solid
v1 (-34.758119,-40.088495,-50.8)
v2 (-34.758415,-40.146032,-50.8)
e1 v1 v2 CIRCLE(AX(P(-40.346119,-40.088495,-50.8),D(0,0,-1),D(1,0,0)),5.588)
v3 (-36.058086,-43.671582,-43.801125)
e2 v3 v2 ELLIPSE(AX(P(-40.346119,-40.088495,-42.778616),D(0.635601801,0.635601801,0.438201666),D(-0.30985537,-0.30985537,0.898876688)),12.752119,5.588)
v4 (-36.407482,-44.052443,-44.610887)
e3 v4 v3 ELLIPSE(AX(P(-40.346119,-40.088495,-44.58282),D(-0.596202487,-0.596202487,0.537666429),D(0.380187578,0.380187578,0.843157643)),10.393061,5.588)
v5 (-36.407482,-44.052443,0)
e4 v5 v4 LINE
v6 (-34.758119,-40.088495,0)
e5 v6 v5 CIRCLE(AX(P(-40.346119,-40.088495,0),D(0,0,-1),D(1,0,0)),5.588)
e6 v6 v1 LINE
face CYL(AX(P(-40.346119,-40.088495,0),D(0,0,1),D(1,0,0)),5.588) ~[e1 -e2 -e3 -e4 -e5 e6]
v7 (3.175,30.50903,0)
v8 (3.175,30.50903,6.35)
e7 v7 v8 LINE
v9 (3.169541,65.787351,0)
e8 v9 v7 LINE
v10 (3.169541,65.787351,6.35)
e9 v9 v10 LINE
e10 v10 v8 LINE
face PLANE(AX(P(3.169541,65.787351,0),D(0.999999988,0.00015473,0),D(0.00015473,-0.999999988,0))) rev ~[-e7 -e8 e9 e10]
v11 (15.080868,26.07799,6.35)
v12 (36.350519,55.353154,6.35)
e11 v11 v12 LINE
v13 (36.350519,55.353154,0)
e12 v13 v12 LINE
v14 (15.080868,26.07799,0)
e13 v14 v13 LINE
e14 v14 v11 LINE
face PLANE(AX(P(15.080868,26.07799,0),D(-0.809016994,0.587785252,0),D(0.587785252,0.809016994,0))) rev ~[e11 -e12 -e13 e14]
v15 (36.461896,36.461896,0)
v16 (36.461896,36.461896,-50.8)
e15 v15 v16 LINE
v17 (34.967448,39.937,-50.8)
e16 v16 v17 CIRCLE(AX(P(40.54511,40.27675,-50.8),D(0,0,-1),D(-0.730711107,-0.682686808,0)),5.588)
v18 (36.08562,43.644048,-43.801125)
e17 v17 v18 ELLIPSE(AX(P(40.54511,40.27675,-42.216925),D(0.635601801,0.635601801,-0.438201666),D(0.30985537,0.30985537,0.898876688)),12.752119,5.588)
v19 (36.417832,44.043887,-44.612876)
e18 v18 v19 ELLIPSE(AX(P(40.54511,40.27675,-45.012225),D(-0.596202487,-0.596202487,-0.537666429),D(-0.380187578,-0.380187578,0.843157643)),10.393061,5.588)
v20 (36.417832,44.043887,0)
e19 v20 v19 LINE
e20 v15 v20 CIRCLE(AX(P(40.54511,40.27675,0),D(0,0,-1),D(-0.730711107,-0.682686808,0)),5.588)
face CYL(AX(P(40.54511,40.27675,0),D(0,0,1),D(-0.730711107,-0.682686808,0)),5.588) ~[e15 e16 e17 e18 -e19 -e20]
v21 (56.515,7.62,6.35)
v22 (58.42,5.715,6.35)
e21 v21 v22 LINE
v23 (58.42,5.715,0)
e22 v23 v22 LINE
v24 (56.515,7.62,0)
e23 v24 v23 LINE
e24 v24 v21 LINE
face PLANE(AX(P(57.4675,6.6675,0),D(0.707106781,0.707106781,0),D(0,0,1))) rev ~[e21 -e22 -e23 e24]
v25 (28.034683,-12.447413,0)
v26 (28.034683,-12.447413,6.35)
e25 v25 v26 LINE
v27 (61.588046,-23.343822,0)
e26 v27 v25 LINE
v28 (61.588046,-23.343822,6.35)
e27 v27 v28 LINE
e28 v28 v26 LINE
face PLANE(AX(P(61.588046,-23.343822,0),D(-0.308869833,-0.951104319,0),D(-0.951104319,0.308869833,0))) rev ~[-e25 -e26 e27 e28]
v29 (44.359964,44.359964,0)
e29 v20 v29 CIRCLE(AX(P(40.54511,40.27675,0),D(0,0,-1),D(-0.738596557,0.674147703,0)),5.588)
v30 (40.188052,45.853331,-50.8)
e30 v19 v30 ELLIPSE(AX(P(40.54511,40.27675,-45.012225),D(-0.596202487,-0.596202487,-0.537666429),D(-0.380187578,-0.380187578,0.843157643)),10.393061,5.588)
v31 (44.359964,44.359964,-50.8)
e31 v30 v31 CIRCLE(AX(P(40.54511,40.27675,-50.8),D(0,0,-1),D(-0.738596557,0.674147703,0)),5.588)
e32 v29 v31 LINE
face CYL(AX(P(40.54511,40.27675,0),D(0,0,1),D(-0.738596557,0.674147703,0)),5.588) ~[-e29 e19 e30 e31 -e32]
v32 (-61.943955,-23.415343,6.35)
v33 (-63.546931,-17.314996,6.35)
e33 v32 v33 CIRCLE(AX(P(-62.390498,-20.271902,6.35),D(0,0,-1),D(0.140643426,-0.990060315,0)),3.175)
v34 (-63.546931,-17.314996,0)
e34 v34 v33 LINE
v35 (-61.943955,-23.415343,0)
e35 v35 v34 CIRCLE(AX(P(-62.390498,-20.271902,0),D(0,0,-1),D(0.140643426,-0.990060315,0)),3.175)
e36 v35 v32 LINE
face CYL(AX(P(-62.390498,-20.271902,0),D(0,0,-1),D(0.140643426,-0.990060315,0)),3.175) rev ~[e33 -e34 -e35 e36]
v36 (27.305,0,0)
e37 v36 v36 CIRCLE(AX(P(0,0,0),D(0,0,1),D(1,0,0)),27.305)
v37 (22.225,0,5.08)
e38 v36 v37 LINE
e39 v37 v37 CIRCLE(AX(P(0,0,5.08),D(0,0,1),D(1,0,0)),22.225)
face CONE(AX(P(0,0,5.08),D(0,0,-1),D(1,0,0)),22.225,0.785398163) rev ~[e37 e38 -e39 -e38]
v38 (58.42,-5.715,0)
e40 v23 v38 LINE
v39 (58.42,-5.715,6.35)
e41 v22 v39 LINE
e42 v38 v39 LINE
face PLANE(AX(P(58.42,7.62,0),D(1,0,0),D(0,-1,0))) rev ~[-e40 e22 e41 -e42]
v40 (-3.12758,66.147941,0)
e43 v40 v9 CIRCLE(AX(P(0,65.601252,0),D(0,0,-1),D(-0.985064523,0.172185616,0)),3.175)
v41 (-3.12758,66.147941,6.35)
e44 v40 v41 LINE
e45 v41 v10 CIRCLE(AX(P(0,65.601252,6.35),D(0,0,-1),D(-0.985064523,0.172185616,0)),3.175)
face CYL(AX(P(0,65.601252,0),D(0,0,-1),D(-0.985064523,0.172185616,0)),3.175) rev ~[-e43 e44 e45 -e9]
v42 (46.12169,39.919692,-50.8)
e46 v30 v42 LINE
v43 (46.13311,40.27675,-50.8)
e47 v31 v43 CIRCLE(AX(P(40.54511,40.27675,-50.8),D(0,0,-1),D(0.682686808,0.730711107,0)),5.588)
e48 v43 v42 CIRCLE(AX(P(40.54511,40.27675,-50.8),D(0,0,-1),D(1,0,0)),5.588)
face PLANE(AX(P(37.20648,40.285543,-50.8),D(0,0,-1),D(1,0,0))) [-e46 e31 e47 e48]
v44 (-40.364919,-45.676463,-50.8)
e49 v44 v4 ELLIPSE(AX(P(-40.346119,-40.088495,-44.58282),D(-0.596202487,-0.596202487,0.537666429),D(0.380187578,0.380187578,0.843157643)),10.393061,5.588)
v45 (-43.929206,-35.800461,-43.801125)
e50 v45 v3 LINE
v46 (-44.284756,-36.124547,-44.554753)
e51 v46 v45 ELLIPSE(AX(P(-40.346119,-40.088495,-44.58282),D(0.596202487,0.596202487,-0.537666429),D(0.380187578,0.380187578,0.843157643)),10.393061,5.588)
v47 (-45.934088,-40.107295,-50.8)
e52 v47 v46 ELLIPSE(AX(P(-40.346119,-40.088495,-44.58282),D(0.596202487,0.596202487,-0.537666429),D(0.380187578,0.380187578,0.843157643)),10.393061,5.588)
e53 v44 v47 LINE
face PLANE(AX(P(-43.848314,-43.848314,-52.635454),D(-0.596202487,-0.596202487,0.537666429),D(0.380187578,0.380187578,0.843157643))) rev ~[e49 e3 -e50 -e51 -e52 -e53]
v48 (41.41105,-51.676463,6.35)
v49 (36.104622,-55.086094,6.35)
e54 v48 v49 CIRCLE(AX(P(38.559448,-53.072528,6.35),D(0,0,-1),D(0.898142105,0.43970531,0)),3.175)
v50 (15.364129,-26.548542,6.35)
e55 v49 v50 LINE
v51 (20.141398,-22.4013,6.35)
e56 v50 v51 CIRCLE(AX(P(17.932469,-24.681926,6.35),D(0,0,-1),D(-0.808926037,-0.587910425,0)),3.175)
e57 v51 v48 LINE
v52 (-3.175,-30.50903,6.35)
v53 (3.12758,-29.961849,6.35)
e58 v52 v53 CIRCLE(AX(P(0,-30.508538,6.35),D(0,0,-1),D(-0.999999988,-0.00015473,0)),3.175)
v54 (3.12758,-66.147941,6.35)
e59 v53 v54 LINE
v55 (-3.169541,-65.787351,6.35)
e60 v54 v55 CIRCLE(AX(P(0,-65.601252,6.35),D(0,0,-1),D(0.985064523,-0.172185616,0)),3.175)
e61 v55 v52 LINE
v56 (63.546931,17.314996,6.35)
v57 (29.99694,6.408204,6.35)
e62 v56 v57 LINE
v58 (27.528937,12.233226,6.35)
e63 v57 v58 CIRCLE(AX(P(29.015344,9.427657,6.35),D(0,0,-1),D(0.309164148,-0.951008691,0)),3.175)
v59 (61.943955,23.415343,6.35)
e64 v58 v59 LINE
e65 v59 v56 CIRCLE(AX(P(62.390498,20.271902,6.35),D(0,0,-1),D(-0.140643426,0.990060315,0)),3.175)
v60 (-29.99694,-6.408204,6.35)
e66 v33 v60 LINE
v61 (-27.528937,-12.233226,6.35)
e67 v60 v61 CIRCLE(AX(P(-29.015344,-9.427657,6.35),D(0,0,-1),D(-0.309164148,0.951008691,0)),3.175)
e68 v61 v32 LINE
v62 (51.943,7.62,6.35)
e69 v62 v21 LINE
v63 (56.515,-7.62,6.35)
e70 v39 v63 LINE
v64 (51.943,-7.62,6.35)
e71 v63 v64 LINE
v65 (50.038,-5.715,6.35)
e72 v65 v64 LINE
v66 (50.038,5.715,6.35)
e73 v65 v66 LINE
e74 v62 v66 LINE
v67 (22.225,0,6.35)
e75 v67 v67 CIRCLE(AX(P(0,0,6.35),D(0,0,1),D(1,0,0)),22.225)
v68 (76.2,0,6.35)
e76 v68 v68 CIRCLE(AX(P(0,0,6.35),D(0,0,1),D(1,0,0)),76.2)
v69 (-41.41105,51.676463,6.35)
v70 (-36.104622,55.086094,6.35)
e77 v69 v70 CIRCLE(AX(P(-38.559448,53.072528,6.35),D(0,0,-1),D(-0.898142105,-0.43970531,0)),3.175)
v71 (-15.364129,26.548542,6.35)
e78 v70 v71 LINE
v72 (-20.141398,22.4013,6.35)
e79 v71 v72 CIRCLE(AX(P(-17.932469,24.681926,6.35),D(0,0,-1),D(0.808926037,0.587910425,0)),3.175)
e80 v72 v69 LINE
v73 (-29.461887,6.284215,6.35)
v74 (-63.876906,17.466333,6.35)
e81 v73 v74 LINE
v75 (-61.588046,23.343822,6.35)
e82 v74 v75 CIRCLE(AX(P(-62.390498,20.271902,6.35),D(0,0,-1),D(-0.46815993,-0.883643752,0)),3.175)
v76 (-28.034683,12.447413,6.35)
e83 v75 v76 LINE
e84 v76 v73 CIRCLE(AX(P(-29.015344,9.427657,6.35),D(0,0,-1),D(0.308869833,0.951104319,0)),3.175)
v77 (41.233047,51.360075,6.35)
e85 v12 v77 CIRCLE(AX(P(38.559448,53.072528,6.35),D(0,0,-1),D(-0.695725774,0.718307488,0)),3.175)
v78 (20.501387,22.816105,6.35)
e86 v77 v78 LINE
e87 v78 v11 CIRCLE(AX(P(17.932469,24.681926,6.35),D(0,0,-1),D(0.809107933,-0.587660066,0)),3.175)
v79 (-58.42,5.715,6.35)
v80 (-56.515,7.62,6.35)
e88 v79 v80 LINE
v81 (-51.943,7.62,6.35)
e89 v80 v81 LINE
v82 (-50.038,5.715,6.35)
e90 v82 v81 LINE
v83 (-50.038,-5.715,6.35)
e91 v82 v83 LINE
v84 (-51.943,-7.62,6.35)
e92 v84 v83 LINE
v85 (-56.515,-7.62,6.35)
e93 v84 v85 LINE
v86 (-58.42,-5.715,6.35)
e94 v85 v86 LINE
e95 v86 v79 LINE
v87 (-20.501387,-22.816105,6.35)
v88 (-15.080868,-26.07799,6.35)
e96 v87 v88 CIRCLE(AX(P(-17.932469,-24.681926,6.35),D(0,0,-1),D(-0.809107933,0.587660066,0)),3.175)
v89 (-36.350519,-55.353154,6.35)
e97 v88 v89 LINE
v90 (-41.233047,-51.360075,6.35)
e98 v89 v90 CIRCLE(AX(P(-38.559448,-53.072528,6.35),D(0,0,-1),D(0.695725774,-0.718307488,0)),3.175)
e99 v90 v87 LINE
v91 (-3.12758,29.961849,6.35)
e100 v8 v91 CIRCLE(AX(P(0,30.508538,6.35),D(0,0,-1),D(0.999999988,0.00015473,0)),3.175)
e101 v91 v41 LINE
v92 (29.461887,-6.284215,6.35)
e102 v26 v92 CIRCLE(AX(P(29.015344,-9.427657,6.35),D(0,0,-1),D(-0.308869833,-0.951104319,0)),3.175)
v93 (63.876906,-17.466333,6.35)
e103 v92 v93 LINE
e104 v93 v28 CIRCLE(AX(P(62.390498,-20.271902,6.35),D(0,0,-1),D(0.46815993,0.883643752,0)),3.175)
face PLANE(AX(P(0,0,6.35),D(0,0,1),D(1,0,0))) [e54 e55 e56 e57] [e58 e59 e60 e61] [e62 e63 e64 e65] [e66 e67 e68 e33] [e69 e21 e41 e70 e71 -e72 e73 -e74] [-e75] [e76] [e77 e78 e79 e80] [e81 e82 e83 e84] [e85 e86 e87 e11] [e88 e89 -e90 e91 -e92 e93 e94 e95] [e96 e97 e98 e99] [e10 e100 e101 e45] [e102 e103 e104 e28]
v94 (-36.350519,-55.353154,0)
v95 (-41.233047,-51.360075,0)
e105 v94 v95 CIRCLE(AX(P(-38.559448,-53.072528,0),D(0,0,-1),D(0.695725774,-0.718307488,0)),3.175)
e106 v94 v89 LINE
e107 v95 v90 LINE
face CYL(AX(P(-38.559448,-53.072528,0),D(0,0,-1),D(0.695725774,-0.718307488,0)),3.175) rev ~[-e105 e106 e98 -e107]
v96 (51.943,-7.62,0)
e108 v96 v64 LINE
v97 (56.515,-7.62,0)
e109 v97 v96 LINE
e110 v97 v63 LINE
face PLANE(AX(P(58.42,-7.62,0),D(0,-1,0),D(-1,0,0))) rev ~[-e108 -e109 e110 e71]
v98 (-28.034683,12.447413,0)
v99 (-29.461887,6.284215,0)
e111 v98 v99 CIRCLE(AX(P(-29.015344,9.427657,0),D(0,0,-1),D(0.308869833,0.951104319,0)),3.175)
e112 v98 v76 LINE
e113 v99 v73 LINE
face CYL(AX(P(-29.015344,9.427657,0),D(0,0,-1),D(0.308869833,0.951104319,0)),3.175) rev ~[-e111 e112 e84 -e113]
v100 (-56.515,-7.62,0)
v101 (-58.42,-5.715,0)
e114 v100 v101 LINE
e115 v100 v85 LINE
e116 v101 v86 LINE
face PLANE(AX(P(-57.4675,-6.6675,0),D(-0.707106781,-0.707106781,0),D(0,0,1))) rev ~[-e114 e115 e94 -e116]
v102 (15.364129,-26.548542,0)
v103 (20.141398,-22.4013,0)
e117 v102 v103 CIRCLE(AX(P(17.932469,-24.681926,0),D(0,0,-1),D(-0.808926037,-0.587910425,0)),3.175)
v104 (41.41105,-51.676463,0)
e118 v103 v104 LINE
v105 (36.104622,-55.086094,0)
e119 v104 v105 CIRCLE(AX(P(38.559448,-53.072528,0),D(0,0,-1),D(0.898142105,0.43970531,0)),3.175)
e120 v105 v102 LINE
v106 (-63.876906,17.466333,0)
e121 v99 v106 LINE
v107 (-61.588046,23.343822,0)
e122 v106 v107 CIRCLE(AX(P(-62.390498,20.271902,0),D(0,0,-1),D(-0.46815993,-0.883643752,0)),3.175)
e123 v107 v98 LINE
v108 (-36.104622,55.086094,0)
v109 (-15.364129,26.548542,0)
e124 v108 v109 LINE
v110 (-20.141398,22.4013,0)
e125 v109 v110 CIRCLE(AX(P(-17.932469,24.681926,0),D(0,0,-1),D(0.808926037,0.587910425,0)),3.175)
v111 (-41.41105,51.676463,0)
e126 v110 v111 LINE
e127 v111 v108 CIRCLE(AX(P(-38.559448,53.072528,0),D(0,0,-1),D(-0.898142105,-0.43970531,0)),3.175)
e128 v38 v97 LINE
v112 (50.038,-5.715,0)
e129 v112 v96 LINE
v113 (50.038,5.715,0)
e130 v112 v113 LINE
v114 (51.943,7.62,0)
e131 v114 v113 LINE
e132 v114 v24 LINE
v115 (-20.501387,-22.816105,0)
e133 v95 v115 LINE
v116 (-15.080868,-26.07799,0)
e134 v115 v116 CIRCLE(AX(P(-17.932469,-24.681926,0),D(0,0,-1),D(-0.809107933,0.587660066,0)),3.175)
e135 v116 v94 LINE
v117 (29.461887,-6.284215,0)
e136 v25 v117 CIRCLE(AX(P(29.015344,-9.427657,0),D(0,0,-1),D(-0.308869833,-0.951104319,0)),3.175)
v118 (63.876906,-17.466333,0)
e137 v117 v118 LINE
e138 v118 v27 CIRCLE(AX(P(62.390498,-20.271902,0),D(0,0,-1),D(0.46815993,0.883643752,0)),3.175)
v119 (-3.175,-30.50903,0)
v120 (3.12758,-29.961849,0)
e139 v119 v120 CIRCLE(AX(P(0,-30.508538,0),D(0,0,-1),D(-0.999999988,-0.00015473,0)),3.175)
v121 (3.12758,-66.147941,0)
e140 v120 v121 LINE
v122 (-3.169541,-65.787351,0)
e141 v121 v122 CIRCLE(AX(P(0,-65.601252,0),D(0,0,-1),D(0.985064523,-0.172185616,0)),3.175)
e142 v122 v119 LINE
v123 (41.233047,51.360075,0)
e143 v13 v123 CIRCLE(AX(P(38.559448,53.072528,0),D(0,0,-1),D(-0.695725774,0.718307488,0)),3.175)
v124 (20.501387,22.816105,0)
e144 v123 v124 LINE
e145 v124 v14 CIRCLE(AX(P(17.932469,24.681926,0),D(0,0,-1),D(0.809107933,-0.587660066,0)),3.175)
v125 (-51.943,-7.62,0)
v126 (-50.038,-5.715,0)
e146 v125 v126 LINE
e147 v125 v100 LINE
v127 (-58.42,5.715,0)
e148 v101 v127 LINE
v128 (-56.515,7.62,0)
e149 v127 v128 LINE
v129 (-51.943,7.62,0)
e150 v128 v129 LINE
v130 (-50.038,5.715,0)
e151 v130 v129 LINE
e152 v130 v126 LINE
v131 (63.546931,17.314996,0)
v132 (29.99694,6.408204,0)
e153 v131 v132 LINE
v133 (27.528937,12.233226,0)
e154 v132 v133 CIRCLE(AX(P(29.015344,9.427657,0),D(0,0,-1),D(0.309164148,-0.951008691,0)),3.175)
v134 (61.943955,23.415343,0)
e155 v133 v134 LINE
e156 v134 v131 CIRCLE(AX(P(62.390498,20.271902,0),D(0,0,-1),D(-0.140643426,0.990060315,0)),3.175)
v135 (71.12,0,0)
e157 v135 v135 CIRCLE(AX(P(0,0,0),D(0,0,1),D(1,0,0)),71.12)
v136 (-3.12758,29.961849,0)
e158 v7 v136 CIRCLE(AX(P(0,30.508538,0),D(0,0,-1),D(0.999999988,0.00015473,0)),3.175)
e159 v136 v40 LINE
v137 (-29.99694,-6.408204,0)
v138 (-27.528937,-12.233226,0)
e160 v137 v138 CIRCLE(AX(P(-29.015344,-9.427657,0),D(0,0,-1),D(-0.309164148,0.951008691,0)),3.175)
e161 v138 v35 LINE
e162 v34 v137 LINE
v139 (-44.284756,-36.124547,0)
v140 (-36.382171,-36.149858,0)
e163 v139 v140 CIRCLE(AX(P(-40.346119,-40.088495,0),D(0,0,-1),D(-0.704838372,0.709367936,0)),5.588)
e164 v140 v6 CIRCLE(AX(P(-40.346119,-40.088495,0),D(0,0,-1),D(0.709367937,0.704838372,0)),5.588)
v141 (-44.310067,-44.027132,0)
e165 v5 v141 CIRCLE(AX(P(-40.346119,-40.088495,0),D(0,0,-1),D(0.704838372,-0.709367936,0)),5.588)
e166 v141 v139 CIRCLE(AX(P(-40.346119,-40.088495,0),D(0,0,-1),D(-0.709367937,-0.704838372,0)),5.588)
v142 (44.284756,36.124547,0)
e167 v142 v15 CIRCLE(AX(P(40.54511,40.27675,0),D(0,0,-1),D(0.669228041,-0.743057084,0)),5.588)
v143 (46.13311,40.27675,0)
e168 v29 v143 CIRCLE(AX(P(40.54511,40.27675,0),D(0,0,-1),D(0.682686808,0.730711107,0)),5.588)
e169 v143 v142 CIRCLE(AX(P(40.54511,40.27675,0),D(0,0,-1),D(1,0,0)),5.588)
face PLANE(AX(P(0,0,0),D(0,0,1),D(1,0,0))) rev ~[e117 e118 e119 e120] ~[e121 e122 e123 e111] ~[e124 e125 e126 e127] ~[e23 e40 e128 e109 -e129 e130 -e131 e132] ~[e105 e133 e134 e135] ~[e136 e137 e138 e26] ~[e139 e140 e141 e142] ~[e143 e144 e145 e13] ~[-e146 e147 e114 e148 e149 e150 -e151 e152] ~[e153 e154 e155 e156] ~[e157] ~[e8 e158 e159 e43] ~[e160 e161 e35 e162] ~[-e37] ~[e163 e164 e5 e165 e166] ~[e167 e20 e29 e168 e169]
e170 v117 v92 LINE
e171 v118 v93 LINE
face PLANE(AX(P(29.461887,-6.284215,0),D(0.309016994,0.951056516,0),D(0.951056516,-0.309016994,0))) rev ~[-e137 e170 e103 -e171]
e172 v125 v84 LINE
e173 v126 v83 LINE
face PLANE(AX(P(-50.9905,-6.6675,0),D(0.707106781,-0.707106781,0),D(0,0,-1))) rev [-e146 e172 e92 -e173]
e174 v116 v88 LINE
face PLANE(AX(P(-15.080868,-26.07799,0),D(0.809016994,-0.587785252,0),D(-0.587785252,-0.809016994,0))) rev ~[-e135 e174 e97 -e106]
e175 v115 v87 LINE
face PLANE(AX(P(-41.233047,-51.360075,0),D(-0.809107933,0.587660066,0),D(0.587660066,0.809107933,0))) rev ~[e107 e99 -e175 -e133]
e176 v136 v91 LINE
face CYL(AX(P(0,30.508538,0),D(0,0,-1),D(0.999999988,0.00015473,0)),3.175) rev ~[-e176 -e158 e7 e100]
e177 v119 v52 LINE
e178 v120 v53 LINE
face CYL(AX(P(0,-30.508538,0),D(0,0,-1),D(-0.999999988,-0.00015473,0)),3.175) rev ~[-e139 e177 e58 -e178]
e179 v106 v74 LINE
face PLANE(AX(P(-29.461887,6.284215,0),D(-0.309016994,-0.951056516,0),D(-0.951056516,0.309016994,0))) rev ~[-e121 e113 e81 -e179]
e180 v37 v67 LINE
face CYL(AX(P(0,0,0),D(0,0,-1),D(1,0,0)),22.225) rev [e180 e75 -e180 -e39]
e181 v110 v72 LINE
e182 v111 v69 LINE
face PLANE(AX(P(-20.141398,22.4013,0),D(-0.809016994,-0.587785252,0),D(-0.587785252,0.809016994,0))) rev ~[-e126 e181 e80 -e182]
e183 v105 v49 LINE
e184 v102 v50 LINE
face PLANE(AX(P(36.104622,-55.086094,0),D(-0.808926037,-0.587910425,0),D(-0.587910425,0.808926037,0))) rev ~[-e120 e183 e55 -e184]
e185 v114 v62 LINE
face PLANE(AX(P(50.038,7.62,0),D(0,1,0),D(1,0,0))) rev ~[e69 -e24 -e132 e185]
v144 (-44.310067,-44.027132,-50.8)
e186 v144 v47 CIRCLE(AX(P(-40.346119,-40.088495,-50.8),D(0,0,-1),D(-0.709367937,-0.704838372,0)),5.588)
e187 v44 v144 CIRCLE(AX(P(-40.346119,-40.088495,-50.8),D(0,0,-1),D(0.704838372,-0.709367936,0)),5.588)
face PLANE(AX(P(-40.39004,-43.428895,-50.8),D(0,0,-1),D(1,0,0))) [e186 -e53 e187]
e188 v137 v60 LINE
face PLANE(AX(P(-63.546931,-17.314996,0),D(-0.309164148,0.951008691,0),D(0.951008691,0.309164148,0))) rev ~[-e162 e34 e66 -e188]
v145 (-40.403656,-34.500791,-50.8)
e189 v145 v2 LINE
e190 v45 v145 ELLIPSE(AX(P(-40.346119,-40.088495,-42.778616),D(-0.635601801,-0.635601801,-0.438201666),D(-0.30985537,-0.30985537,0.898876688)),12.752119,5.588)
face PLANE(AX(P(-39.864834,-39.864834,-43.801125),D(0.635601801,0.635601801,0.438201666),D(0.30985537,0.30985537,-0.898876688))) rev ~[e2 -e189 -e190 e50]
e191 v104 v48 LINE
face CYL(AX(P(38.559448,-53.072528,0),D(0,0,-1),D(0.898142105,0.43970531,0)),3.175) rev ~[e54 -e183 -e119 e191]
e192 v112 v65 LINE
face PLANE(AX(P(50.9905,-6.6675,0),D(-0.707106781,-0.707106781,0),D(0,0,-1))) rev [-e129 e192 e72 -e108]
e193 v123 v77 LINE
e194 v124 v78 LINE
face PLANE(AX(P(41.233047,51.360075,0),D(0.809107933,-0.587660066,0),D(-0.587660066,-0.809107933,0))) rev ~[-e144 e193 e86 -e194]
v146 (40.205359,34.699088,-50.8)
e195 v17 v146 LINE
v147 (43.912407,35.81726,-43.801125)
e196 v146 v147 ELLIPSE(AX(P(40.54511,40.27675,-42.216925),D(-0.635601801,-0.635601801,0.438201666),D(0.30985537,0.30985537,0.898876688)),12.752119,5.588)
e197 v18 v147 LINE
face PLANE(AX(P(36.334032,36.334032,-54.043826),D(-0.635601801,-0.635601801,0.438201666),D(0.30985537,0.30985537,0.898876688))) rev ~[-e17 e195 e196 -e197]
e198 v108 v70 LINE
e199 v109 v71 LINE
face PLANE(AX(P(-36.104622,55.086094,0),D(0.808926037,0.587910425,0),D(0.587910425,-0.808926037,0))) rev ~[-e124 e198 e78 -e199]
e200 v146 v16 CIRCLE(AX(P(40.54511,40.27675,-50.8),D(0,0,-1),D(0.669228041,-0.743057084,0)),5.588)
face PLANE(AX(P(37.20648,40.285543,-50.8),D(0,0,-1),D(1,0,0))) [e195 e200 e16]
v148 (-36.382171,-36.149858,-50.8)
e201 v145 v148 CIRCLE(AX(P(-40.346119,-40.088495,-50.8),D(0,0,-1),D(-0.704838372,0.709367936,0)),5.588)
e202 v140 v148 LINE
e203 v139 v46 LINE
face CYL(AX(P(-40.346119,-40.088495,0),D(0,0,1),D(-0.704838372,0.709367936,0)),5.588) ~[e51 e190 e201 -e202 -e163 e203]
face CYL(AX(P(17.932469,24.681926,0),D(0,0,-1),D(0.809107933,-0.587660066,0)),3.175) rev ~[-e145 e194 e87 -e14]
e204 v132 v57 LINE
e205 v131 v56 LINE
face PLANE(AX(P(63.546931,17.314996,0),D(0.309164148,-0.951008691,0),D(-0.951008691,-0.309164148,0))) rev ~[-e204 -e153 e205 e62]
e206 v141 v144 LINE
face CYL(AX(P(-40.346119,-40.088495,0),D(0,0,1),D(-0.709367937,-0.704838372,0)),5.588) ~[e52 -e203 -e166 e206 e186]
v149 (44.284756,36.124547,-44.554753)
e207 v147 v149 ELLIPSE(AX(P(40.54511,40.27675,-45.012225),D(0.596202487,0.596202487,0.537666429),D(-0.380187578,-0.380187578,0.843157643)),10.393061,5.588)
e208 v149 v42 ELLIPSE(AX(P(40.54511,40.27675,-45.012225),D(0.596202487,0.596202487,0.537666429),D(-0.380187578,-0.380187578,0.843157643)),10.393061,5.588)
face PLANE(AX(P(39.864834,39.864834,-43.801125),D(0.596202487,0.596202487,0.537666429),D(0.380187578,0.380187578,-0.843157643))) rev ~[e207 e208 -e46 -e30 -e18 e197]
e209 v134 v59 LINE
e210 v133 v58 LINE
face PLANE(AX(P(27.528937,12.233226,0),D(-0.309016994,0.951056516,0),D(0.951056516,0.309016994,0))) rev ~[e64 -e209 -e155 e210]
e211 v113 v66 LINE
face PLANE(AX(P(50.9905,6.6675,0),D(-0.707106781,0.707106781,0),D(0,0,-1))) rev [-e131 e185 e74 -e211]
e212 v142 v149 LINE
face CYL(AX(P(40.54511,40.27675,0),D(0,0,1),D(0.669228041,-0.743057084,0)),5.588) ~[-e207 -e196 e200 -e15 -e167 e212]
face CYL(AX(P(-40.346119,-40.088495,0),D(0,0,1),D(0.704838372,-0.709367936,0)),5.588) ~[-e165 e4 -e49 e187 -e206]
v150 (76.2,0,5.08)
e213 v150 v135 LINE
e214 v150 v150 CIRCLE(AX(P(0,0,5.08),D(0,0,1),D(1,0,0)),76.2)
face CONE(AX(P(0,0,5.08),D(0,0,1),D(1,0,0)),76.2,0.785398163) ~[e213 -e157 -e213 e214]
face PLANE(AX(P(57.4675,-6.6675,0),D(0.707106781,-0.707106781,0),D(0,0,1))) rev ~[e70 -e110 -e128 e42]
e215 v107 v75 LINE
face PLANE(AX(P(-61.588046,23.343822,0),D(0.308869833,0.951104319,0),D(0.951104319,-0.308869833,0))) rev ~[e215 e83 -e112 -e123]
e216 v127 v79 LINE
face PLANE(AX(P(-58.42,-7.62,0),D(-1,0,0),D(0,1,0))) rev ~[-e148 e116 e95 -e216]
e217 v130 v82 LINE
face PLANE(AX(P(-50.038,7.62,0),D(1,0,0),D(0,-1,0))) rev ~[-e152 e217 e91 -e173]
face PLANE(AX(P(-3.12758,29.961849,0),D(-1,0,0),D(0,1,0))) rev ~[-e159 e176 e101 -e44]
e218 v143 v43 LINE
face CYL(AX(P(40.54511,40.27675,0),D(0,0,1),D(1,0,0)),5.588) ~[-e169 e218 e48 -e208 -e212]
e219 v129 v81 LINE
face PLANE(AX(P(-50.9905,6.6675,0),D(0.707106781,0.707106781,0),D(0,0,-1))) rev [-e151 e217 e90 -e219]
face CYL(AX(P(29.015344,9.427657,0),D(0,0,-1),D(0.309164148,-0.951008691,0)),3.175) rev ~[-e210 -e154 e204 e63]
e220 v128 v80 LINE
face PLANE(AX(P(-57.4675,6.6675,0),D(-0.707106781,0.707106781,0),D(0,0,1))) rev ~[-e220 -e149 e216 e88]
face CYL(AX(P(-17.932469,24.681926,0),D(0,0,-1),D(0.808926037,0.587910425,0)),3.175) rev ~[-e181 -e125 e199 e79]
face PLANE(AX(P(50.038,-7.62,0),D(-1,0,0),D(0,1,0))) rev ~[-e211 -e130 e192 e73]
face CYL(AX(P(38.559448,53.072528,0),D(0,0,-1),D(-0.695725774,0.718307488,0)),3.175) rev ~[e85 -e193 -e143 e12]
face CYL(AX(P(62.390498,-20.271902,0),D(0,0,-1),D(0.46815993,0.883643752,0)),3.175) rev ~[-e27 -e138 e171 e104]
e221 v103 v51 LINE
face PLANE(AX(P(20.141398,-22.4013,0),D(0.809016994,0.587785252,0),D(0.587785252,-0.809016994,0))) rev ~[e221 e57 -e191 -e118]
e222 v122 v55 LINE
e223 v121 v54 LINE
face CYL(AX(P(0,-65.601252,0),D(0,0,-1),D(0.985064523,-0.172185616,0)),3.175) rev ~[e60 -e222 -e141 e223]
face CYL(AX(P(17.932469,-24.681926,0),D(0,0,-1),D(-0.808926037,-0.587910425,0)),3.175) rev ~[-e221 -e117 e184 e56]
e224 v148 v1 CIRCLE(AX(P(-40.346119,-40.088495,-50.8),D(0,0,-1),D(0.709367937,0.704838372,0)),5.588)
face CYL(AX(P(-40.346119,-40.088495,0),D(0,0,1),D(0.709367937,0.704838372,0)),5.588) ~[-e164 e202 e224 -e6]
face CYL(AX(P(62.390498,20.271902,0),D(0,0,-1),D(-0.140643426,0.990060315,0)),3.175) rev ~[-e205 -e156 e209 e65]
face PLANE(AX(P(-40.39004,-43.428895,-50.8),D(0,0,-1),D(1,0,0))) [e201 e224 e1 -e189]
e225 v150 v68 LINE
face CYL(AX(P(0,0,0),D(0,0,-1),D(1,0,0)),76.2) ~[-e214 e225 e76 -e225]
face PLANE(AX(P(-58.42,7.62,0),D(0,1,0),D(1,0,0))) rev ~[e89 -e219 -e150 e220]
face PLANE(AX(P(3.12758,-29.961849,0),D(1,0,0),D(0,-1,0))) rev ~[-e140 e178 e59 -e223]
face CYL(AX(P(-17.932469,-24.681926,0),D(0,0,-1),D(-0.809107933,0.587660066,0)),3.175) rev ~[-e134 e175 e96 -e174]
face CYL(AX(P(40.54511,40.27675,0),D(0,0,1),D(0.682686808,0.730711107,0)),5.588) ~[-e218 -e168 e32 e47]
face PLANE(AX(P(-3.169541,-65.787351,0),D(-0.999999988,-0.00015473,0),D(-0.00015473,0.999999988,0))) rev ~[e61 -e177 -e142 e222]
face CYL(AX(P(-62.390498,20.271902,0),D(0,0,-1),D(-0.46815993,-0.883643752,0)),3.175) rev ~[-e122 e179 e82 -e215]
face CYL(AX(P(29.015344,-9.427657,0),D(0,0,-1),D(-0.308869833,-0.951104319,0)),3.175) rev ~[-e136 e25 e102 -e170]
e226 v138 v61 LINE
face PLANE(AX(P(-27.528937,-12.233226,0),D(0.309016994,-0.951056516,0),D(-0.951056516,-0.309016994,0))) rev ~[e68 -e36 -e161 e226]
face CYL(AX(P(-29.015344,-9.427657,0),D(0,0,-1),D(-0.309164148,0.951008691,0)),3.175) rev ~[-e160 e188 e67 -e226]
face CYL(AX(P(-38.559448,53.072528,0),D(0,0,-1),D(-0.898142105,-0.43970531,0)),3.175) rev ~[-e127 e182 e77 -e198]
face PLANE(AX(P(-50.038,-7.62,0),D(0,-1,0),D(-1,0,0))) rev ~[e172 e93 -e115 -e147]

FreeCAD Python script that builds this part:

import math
import FreeCAD as App
import Part
import Sketcher
from FreeCAD import Vector
Q = App.Units.Quantity


def edges_at(feature, points):
    """Names of the edges that pass closest to the given points."""
    edges = feature.Shape.Edges
    near = lambda p: min(range(len(edges)), key=lambda i: edges[i].distToShape(Part.Vertex(*p))[0])
    return sorted({f"Edge{near(p) + 1}" for p in points})

doc = App.newDocument("Part")
body = doc.addObject("PartDesign::Body", "Body")

# Sketch on XY plane
sketch1 = body.newObject("Sketcher::SketchObject", "Sketch")
sketch1.AttachmentSupport = (doc.getObject("XY_Plane"), [""])
sketch1.MapMode = "FlatFace"
sketch1.addGeometry([
    Part.Circle(Vector(0, 0, 0), Vector(0, 0, 1), 76.2),  # 0
    Part.LineSegment(Vector(-15.1, -26.1, 0), Vector(-36.4, -55.4, 0)),  # 1
    Part.ArcOfCircle(Part.Circle(Vector(-38.6, -53.1, 0), Vector(0, 0, 1), 3.2), math.radians(147), math.radians(314)),  # 2
    Part.LineSegment(Vector(-41.2, -51.4, 0), Vector(-20.5, -22.8, 0)),  # 3
    Part.ArcOfCircle(Part.Circle(Vector(-17.9, -24.7, 0), Vector(0, 0, 1), 3.2), math.radians(-26), math.radians(144)),  # 4
    Part.LineSegment(Vector(3.1, -30, 0), Vector(3.1, -66.1, 0)),  # 5
    Part.ArcOfCircle(Part.Circle(Vector(0, -65.6, 0), Vector(0, 0, 1), 3.2), math.radians(-177), math.radians(-10)),  # 6
    Part.LineSegment(Vector(-3.2, -65.8, 0), Vector(-3.2, -30.5, 0)),  # 7
    Part.ArcOfCircle(Part.Circle(Vector(0, -30.5, 0), Vector(0, 0, 1), 3.2), math.radians(10), math.radians(180)),  # 8
    Part.LineSegment(Vector(-27.5, -12.2, 0), Vector(-61.9, -23.4, 0)),  # 9
    Part.ArcOfCircle(Part.Circle(Vector(-62.4, -20.3, 0), Vector(0, 0, 1), 3.2), math.radians(111), math.radians(278)),  # 10
    Part.LineSegment(Vector(-63.5, -17.3, 0), Vector(-30, -6.4, 0)),  # 11
    Part.ArcOfCircle(Part.Circle(Vector(-29, -9.4, 0), Vector(0, 0, 1), 3.2), math.radians(-62), math.radians(108)),  # 12
    Part.LineSegment(Vector(20.1, -22.4, 0), Vector(41.4, -51.7, 0)),  # 13
    Part.ArcOfCircle(Part.Circle(Vector(38.6, -53.1, 0), Vector(0, 0, 1), 3.2), math.radians(-141), math.radians(26)),  # 14
    Part.LineSegment(Vector(36.1, -55.1, 0), Vector(15.4, -26.5, 0)),  # 15
    Part.ArcOfCircle(Part.Circle(Vector(17.9, -24.7, 0), Vector(0, 0, 1), 3.2), math.radians(46), math.radians(216)),  # 16
    Part.LineSegment(Vector(29.5, -6.3, 0), Vector(63.9, -17.5, 0)),  # 17
    Part.ArcOfCircle(Part.Circle(Vector(62.4, -20.3, 0), Vector(0, 0, 1), 3.2), math.radians(-105), math.radians(62)),  # 18
    Part.LineSegment(Vector(61.6, -23.3, 0), Vector(28, -12.4, 0)),  # 19
    Part.ArcOfCircle(Part.Circle(Vector(29, -9.4, 0), Vector(0, 0, 1), 3.2), math.radians(82), math.radians(252)),  # 20
    Part.LineSegment(Vector(-50, -7.6, 0), Vector(-58.4, -7.6, 0)),  # 21
    Part.LineSegment(Vector(-58.4, -7.6, 0), Vector(-58.4, 7.6, 0)),  # 22
    Part.LineSegment(Vector(-58.4, 7.6, 0), Vector(-50, 7.6, 0)),  # 23
    Part.LineSegment(Vector(-50, 7.6, 0), Vector(-50, -7.6, 0)),  # 24
    Part.LineSegment(Vector(-29.5, 6.3, 0), Vector(-63.9, 17.5, 0)),  # 25
    Part.ArcOfCircle(Part.Circle(Vector(-62.4, 20.3, 0), Vector(0, 0, 1), 3.2), math.radians(75), math.radians(242)),  # 26
    Part.LineSegment(Vector(-61.6, 23.3, 0), Vector(-28, 12.4, 0)),  # 27
    Part.ArcOfCircle(Part.Circle(Vector(-29, 9.4, 0), Vector(0, 0, 1), 3.2), math.radians(-98), math.radians(72)),  # 28
    Part.LineSegment(Vector(-20.1, 22.4, 0), Vector(-41.4, 51.7, 0)),  # 29
    Part.ArcOfCircle(Part.Circle(Vector(-38.6, 53.1, 0), Vector(0, 0, 1), 3.2), math.radians(39), math.radians(206)),  # 30
    Part.LineSegment(Vector(-36.1, 55.1, 0), Vector(-15.4, 26.5, 0)),  # 31
    Part.ArcOfCircle(Part.Circle(Vector(-17.9, 24.7, 0), Vector(0, 0, 1), 3.2), math.radians(-134), math.radians(36)),  # 32
    Part.Circle(Vector(0, 0, 0), Vector(0, 0, 1), 22.2),  # 33
    Part.LineSegment(Vector(27.5, 12.2, 0), Vector(61.9, 23.4, 0)),  # 34
    Part.ArcOfCircle(Part.Circle(Vector(62.4, 20.3, 0), Vector(0, 0, 1), 3.2), math.radians(-69), math.radians(98)),  # 35
    Part.LineSegment(Vector(63.5, 17.3, 0), Vector(30, 6.4, 0)),  # 36
    Part.ArcOfCircle(Part.Circle(Vector(29, 9.4, 0), Vector(0, 0, 1), 3.2), math.radians(118), math.radians(288)),  # 37
    Part.LineSegment(Vector(50, 7.6, 0), Vector(58.4, 7.6, 0)),  # 38
    Part.LineSegment(Vector(58.4, 7.6, 0), Vector(58.4, -7.6, 0)),  # 39
    Part.LineSegment(Vector(58.4, -7.6, 0), Vector(50, -7.6, 0)),  # 40
    Part.LineSegment(Vector(50, -7.6, 0), Vector(50, 7.6, 0)),  # 41
    Part.LineSegment(Vector(3.2, 65.8, 0), Vector(3.2, 30.5, 0)),  # 42
    Part.ArcOfCircle(Part.Circle(Vector(0, 30.5, 0), Vector(0, 0, 1), 3.2), math.radians(-170), math.radians(0)),  # 43
    Part.LineSegment(Vector(-3.1, 30, 0), Vector(-3.1, 66.1, 0)),  # 44
    Part.ArcOfCircle(Part.Circle(Vector(0, 65.6, 0), Vector(0, 0, 1), 3.2), math.radians(3), math.radians(170)),  # 45
    Part.LineSegment(Vector(15.1, 26.1, 0), Vector(36.4, 55.4, 0)),  # 46
    Part.ArcOfCircle(Part.Circle(Vector(38.6, 53.1, 0), Vector(0, 0, 1), 3.2), math.radians(-33), math.radians(134)),  # 47
    Part.LineSegment(Vector(41.2, 51.4, 0), Vector(20.5, 22.8, 0)),  # 48
    Part.ArcOfCircle(Part.Circle(Vector(17.9, 24.7, 0), Vector(0, 0, 1), 3.2), math.radians(154), math.radians(324)),  # 49
], False)
sketch1.addConstraint([
    Sketcher.Constraint("Coincident", 1, 2, 2, 2),
    Sketcher.Constraint("Coincident", 2, 1, 3, 1),
    Sketcher.Constraint("Tangent", 3, 2, 4, 2),
    Sketcher.Constraint("Coincident", 4, 1, 1, 1),
    Sketcher.Constraint("Coincident", 5, 2, 6, 2),
    Sketcher.Constraint("Coincident", 6, 1, 7, 1),
    Sketcher.Constraint("Tangent", 7, 2, 8, 2),
    Sketcher.Constraint("Coincident", 8, 1, 5, 1),
    Sketcher.Constraint("Coincident", 9, 2, 10, 2),
    Sketcher.Constraint("Coincident", 10, 1, 11, 1),
    Sketcher.Constraint("Tangent", 11, 2, 12, 2),
    Sketcher.Constraint("Coincident", 12, 1, 9, 1),
    Sketcher.Constraint("Coincident", 13, 2, 14, 2),
    Sketcher.Constraint("Coincident", 14, 1, 15, 1),
    Sketcher.Constraint("Tangent", 15, 2, 16, 2),
    Sketcher.Constraint("Coincident", 16, 1, 13, 1),
    Sketcher.Constraint("Coincident", 17, 2, 18, 2),
    Sketcher.Constraint("Coincident", 18, 1, 19, 1),
    Sketcher.Constraint("Tangent", 19, 2, 20, 2),
    Sketcher.Constraint("Coincident", 20, 1, 17, 1),
    Sketcher.Constraint("Coincident", 21, 2, 22, 1),
    Sketcher.Constraint("Coincident", 22, 2, 23, 1),
    Sketcher.Constraint("Coincident", 23, 2, 24, 1),
    Sketcher.Constraint("Coincident", 24, 2, 21, 1),
    Sketcher.Constraint("Coincident", 25, 2, 26, 2),
    Sketcher.Constraint("Coincident", 26, 1, 27, 1),
    Sketcher.Constraint("Tangent", 27, 2, 28, 2),
    Sketcher.Constraint("Coincident", 28, 1, 25, 1),
    Sketcher.Constraint("Coincident", 29, 2, 30, 2),
    Sketcher.Constraint("Coincident", 30, 1, 31, 1),
    Sketcher.Constraint("Tangent", 31, 2, 32, 2),
    Sketcher.Constraint("Coincident", 32, 1, 29, 1),
    Sketcher.Constraint("Coincident", 34, 2, 35, 2),
    Sketcher.Constraint("Coincident", 35, 1, 36, 1),
    Sketcher.Constraint("Tangent", 36, 2, 37, 2),
    Sketcher.Constraint("Coincident", 37, 1, 34, 1),
    Sketcher.Constraint("Coincident", 38, 2, 39, 1),
    Sketcher.Constraint("Coincident", 39, 2, 40, 1),
    Sketcher.Constraint("Coincident", 40, 2, 41, 1),
    Sketcher.Constraint("Coincident", 41, 2, 38, 1),
    Sketcher.Constraint("Tangent", 42, 2, 43, 2),
    Sketcher.Constraint("Coincident", 43, 1, 44, 1),
    Sketcher.Constraint("Coincident", 44, 2, 45, 2),
    Sketcher.Constraint("Coincident", 45, 1, 42, 1),
    Sketcher.Constraint("Coincident", 46, 2, 47, 2),
    Sketcher.Constraint("Coincident", 47, 1, 48, 1),
    Sketcher.Constraint("Tangent", 48, 2, 49, 2),
    Sketcher.Constraint("Coincident", 49, 1, 46, 1),
    Sketcher.Constraint("Vertical", 5),
    Sketcher.Constraint("Horizontal", 21),
    Sketcher.Constraint("Vertical", 22),
    Sketcher.Constraint("Horizontal", 23),
    Sketcher.Constraint("Vertical", 24),
    Sketcher.Constraint("Horizontal", 38),
    Sketcher.Constraint("Vertical", 39),
    Sketcher.Constraint("Horizontal", 40),
    Sketcher.Constraint("Vertical", 41),
    Sketcher.Constraint("Vertical", 44),
    Sketcher.Constraint("Coincident", 0, 3, -1, 1),
    Sketcher.Constraint("Coincident", 33, 3, -1, 1),
    Sketcher.Constraint("Equal", 2, 4),
    Sketcher.Constraint("Equal", 4, 6),
    Sketcher.Constraint("Equal", 6, 8),
    Sketcher.Constraint("Equal", 8, 10),
    Sketcher.Constraint("Equal", 10, 12),
    Sketcher.Constraint("Equal", 12, 14),
    Sketcher.Constraint("Equal", 14, 16),
    Sketcher.Constraint("Equal", 16, 18),
    Sketcher.Constraint("Equal", 18, 20),
    Sketcher.Constraint("Equal", 20, 26),
    Sketcher.Constraint("Equal", 26, 28),
    Sketcher.Constraint("Equal", 28, 30),
    Sketcher.Constraint("Equal", 30, 32),
    Sketcher.Constraint("Equal", 32, 35),
    Sketcher.Constraint("Equal", 35, 37),
    Sketcher.Constraint("Equal", 37, 43),
    Sketcher.Constraint("Equal", 43, 45),
    Sketcher.Constraint("Equal", 45, 47),
    Sketcher.Constraint("Equal", 47, 49),
    Sketcher.Constraint("Symmetric", 18, 3, 26, 3, -1, 1),
    Sketcher.Constraint("Symmetric", 20, 3, 28, 3, -1, 1),
    Sketcher.Constraint("Symmetric", 14, 3, 30, 3, -1, 1),
    Sketcher.Constraint("Symmetric", 16, 3, 32, 3, -1, 1),
    Sketcher.Constraint("Symmetric", 10, 3, 35, 3, -1, 1),
    Sketcher.Constraint("Symmetric", 12, 3, 37, 3, -1, 1),
    Sketcher.Constraint("Symmetric", 8, 3, 43, 3, -1, 1),
    Sketcher.Constraint("Symmetric", 6, 3, 45, 3, -1, 1),
    Sketcher.Constraint("Symmetric", 2, 3, 47, 3, -1, 1),
    Sketcher.Constraint("Symmetric", 4, 3, 49, 3, -1, 1),
    Sketcher.Constraint("Symmetric", 21, 2, 38, 2, -1, 1),
    Sketcher.Constraint("Symmetric", 23, 2, 40, 2, -1, 1),
    Sketcher.Constraint("Symmetric", 2, 3, 14, 3, -2),
    Sketcher.Constraint("Symmetric", 4, 3, 16, 3, -2),
    Sketcher.Constraint("Symmetric", 10, 3, 18, 3, -2),
    Sketcher.Constraint("Symmetric", 12, 3, 20, 3, -2),
    Sketcher.Constraint("PointOnObject", 6, 3, -2),
    Sketcher.Constraint("PointOnObject", 8, 3, -2),
    Sketcher.Constraint("Parallel", 17, 25),
    Sketcher.Constraint("Parallel", 19, 27),
    Sketcher.Constraint("Parallel", 13, 29),
    Sketcher.Constraint("Parallel", 15, 31),
    Sketcher.Constraint("Parallel", 9, 34),
    Sketcher.Constraint("Parallel", 11, 36),
    Sketcher.Constraint("Parallel", 7, 42),
    Sketcher.Constraint("Parallel", 1, 46),
    Sketcher.Constraint("Parallel", 3, 48),
    Sketcher.Constraint("Horizontal", 23, 2, 38, 2),
    Sketcher.Constraint("Equal", 5, 44),
    Sketcher.Constraint("Equal", 3, 7),
    Sketcher.Constraint("Equal", 1, 9),
    Sketcher.Constraint("Equal", 7, 11),
    Sketcher.Constraint("Equal", 9, 13),
    Sketcher.Constraint("Equal", 11, 15),
    Sketcher.Constraint("Equal", 13, 17),
    Sketcher.Constraint("Equal", 15, 19),
    Sketcher.Constraint("Equal", 17, 25),
    Sketcher.Constraint("Equal", 25, 29),
    Sketcher.Constraint("Equal", 29, 34),
    Sketcher.Constraint("Equal", 34, 46),
    Sketcher.Constraint("Diameter", 0, Q("6 in")),
    Sketcher.Constraint("Diameter", 33, Q("1.75 in")),
    Sketcher.Constraint("DistanceY", 22, 1, 22, 2, Q("0.6 in")),
    Sketcher.Constraint("Angle", 1, Q("-126 deg")),
    Sketcher.Constraint("Angle", 9, Q("-162 deg")),
    Sketcher.Constraint("Angle", 13, Q("-54 deg")),
    Sketcher.Constraint("Angle", 17, Q("-18 deg")),
    Sketcher.Constraint("Radius", 2, Q("0.125 in")),
    Sketcher.Constraint("DistanceX", 21, 2, 21, 1, Q("0.33 in")),
    Sketcher.Constraint("DistanceX", 21, 2, -1, 1, Q("2.3 in")),
    Sketcher.Constraint("DistanceX", 10, 3, -1, 1, 62.390498),
    Sketcher.Constraint("DistanceY", 10, 3, -1, 1, 20.271902),
    Sketcher.Constraint("DistanceX", -1, 1, 16, 1, 20.141398),
    Sketcher.Constraint("DistanceY", 16, 1, -1, 1, 22.4013),
    Sketcher.Constraint("Distance", 3, 35.278321),
    Sketcher.Constraint("DistanceY", 5, 2, 5, 1, 36.186092),
    Sketcher.Constraint("DistanceX", 2, 3, -1, 1, 38.559448),
    Sketcher.Constraint("DistanceX", 4, 3, -1, 1, 17.932469),
    Sketcher.Constraint("DistanceY", 8, 3, -1, 1, 30.508538),
    Sketcher.Constraint("DistanceY", 4, 1, -1, 1, 26.07799),
    Sketcher.Constraint("DistanceX", -1, 1, 5, 2, 3.12758),
    Sketcher.Constraint("DistanceX", 10, 1, -1, 1, 63.546931),
    Sketcher.Constraint("DistanceX", 11, 2, -1, 1, 29.99694),
])
pad1 = body.newObject("PartDesign::Pad", "Pad")
pad1.Profile = sketch1
pad1.Length = Q("0.25 in")
doc.recompute()

chamfer = body.newObject("PartDesign::Chamfer", "Chamfer")
chamfer.Base = (pad1, edges_at(pad1, [
    (58.42, 7.62, 3.175),
    (50.038, 7.62, 3.175),
    (58.42, -7.62, 3.175),
    (50.038, -7.62, 3.175),
    (-50.038, 7.62, 3.175),
    (-58.42, 7.62, 3.175),
    (-50.038, -7.62, 3.175),
    (-58.42, -7.62, 3.175),
]))
chamfer.Size = Q("0.075 in")

# Sketch on XY plane
sketch2 = body.newObject("Sketcher::SketchObject", "Sketch001")
sketch2.AttachmentSupport = (doc.getObject("XY_Plane"), [""])
sketch2.MapMode = "FlatFace"
sketch2.addGeometry([
    Part.ArcOfCircle(Part.Circle(Vector(-40.3, -40.1, 0), Vector(0, 0, 1), 5.6), math.radians(-135), math.radians(-45)),  # 0
    Part.ArcOfCircle(Part.Circle(Vector(-40.3, -40.1, 0), Vector(0, 0, 1), 5.6), math.radians(135), math.radians(225)),  # 1
    Part.ArcOfCircle(Part.Circle(Vector(-40.3, -40.1, 0), Vector(0, 0, 1), 5.6), math.radians(45), math.radians(135)),  # 2
    Part.ArcOfCircle(Part.Circle(Vector(-40.3, -40.1, 0), Vector(0, 0, 1), 5.6), math.radians(0), math.radians(45)),  # 3
    Part.ArcOfCircle(Part.Circle(Vector(-40.3, -40.1, 0), Vector(0, 0, 1), 5.6), math.radians(-45), math.radians(0)),  # 4
    Part.ArcOfCircle(Part.Circle(Vector(40.5, 40.3, 0), Vector(0, 0, 1), 5.6), math.radians(138), math.radians(223)),  # 5
    Part.ArcOfCircle(Part.Circle(Vector(40.5, 40.3, 0), Vector(0, 0, 1), 5.6), math.radians(47), math.radians(138)),  # 6
    Part.ArcOfCircle(Part.Circle(Vector(40.5, 40.3, 0), Vector(0, 0, 1), 5.6), math.radians(0), math.radians(47)),  # 7
    Part.ArcOfCircle(Part.Circle(Vector(40.5, 40.3, 0), Vector(0, 0, 1), 5.6), math.radians(-48), math.radians(0)),  # 8
    Part.ArcOfCircle(Part.Circle(Vector(40.5, 40.3, 0), Vector(0, 0, 1), 5.6), math.radians(-137), math.radians(-48)),  # 9
], False)
sketch2.addConstraint([
    Sketcher.Constraint("Tangent", 0, 1, 1, 2),
    Sketcher.Constraint("Tangent", 1, 1, 2, 2),
    Sketcher.Constraint("Tangent", 2, 1, 3, 2),
    Sketcher.Constraint("Tangent", 3, 1, 4, 2),
    Sketcher.Constraint("Tangent", 4, 1, 0, 2),
    Sketcher.Constraint("Tangent", 5, 1, 6, 2),
    Sketcher.Constraint("Tangent", 6, 1, 7, 2),
    Sketcher.Constraint("Tangent", 7, 1, 8, 2),
    Sketcher.Constraint("Tangent", 8, 1, 9, 2),
    Sketcher.Constraint("Tangent", 9, 1, 5, 2),
    Sketcher.Constraint("Coincident", 2, 3, 0, 3),
    Sketcher.Constraint("Coincident", 7, 3, 5, 3),
    Sketcher.Constraint("Equal", 4, 5),
    Sketcher.Constraint("Symmetric", 1, 1, 8, 1, -1, 1),
    Sketcher.Constraint("Horizontal", 4, 3, 3, 1),
    Sketcher.Constraint("Horizontal", 9, 3, 7, 1),
    Sketcher.Constraint("Radius", 0, Q("0.22 in")),
    Sketcher.Constraint("DistanceX", 0, 3, -1, 1, 40.346119),
    Sketcher.Constraint("DistanceX", -1, 1, 5, 3, 40.54511),
    Sketcher.Constraint("DistanceY", -1, 1, 5, 3, 40.27675),
    Sketcher.Constraint("DistanceY", 0, 1, -1, 1, 44.027132),
    Sketcher.Constraint("DistanceX", 2, 1, -1, 1, 36.382171),
    Sketcher.Constraint("DistanceY", 2, 1, -1, 1, 36.149858),
    Sketcher.Constraint("DistanceY", 4, 1, 3, 1, 3.963948),
    Sketcher.Constraint("DistanceX", -1, 1, 5, 1, 36.417832),
    Sketcher.Constraint("DistanceX", -1, 1, 6, 1, 44.359964),
    Sketcher.Constraint("DistanceX", -1, 1, 9, 1, 36.461896),
])
pad2 = body.newObject("PartDesign::Pad", "Pad001")
pad2.Profile = sketch2
pad2.Length = Q("2 in")
pad2.Reversed = True

# Sketch on an angled plane
sketch3 = body.newObject("Sketcher::SketchObject", "Sketch002")
sketch3.Placement = App.Placement(Vector(0, 0, 0), App.Rotation(Vector(-0.707106781, -0.707106781, 0), Vector(0, 0, 0.999999999), Vector(-0.707106781, 0.707106781, 0), "ZXY"))
sketch3.addGeometry([
    Part.LineSegment(Vector(62, -54, 0), Vector(62, -52.6, 0)),  # 0
    Part.LineSegment(Vector(62, -52.6, 0), Vector(56.4, -43.8, 0)),  # 1
    Part.LineSegment(Vector(56.4, -43.8, 0), Vector(51.4, -54, 0)),  # 2
    Part.LineSegment(Vector(51.4, -54, 0), Vector(62, -54, 0)),  # 3
    Part.LineSegment(Vector(-51.4, -54, 0), Vector(-56.4, -43.8, 0)),  # 4
    Part.LineSegment(Vector(-56.4, -43.8, 0), Vector(-62, -52.6, 0)),  # 5
    Part.LineSegment(Vector(-62, -52.6, 0), Vector(-62, -54, 0)),  # 6
    Part.LineSegment(Vector(-62, -54, 0), Vector(-51.4, -54, 0)),  # 7
], False)
sketch3.addConstraint([
    Sketcher.Constraint("Coincident", 0, 2, 1, 1),
    Sketcher.Constraint("Coincident", 1, 2, 2, 1),
    Sketcher.Constraint("Coincident", 2, 2, 3, 1),
    Sketcher.Constraint("Coincident", 3, 2, 0, 1),
    Sketcher.Constraint("Coincident", 4, 2, 5, 1),
    Sketcher.Constraint("Coincident", 5, 2, 6, 1),
    Sketcher.Constraint("Coincident", 6, 2, 7, 1),
    Sketcher.Constraint("Coincident", 7, 2, 4, 1),
    Sketcher.Constraint("Vertical", 0),
    Sketcher.Constraint("Horizontal", 3),
    Sketcher.Constraint("Vertical", 6),
    Sketcher.Constraint("Horizontal", 7),
    Sketcher.Constraint("Symmetric", 1, 2, 4, 2, -2),
    Sketcher.Constraint("Symmetric", 0, 2, 5, 2, -2),
    Sketcher.Constraint("Symmetric", 2, 2, 7, 2, -2),
    Sketcher.Constraint("DistanceX", 3, 1, 3, 2, 10.6268),
    Sketcher.Constraint("Distance", 2, 11.395001),
    Sketcher.Constraint("DistanceY", 2, 2, 1, 2, 10.242701),
    Sketcher.Constraint("Distance", 1, 10.477671),
    Sketcher.Constraint("DistanceX", -1, 1, 0, 2, 62.010881),
    Sketcher.Constraint("DistanceY", 0, 2, -1, 1, 52.635454),
])
pocket1 = body.newObject("PartDesign::Pocket", "Pocket")
pocket1.Profile = sketch3
pocket1.Type = "ThroughAll"
pocket1.Midplane = True
doc.recompute()

chamfer2 = body.newObject("PartDesign::Chamfer", "Chamfer001")
chamfer2.Base = (pocket1, edges_at(pocket1, [(-76.2, 0, 0)]))
chamfer2.Size = Q("0.2 in")
doc.recompute()

chamfer3 = body.newObject("PartDesign::Chamfer", "Chamfer002")
chamfer3.Base = (chamfer2, edges_at(chamfer2, [(-22.225, 0, 0)]))
chamfer3.Size = Q("0.2 in")

doc.recompute()
